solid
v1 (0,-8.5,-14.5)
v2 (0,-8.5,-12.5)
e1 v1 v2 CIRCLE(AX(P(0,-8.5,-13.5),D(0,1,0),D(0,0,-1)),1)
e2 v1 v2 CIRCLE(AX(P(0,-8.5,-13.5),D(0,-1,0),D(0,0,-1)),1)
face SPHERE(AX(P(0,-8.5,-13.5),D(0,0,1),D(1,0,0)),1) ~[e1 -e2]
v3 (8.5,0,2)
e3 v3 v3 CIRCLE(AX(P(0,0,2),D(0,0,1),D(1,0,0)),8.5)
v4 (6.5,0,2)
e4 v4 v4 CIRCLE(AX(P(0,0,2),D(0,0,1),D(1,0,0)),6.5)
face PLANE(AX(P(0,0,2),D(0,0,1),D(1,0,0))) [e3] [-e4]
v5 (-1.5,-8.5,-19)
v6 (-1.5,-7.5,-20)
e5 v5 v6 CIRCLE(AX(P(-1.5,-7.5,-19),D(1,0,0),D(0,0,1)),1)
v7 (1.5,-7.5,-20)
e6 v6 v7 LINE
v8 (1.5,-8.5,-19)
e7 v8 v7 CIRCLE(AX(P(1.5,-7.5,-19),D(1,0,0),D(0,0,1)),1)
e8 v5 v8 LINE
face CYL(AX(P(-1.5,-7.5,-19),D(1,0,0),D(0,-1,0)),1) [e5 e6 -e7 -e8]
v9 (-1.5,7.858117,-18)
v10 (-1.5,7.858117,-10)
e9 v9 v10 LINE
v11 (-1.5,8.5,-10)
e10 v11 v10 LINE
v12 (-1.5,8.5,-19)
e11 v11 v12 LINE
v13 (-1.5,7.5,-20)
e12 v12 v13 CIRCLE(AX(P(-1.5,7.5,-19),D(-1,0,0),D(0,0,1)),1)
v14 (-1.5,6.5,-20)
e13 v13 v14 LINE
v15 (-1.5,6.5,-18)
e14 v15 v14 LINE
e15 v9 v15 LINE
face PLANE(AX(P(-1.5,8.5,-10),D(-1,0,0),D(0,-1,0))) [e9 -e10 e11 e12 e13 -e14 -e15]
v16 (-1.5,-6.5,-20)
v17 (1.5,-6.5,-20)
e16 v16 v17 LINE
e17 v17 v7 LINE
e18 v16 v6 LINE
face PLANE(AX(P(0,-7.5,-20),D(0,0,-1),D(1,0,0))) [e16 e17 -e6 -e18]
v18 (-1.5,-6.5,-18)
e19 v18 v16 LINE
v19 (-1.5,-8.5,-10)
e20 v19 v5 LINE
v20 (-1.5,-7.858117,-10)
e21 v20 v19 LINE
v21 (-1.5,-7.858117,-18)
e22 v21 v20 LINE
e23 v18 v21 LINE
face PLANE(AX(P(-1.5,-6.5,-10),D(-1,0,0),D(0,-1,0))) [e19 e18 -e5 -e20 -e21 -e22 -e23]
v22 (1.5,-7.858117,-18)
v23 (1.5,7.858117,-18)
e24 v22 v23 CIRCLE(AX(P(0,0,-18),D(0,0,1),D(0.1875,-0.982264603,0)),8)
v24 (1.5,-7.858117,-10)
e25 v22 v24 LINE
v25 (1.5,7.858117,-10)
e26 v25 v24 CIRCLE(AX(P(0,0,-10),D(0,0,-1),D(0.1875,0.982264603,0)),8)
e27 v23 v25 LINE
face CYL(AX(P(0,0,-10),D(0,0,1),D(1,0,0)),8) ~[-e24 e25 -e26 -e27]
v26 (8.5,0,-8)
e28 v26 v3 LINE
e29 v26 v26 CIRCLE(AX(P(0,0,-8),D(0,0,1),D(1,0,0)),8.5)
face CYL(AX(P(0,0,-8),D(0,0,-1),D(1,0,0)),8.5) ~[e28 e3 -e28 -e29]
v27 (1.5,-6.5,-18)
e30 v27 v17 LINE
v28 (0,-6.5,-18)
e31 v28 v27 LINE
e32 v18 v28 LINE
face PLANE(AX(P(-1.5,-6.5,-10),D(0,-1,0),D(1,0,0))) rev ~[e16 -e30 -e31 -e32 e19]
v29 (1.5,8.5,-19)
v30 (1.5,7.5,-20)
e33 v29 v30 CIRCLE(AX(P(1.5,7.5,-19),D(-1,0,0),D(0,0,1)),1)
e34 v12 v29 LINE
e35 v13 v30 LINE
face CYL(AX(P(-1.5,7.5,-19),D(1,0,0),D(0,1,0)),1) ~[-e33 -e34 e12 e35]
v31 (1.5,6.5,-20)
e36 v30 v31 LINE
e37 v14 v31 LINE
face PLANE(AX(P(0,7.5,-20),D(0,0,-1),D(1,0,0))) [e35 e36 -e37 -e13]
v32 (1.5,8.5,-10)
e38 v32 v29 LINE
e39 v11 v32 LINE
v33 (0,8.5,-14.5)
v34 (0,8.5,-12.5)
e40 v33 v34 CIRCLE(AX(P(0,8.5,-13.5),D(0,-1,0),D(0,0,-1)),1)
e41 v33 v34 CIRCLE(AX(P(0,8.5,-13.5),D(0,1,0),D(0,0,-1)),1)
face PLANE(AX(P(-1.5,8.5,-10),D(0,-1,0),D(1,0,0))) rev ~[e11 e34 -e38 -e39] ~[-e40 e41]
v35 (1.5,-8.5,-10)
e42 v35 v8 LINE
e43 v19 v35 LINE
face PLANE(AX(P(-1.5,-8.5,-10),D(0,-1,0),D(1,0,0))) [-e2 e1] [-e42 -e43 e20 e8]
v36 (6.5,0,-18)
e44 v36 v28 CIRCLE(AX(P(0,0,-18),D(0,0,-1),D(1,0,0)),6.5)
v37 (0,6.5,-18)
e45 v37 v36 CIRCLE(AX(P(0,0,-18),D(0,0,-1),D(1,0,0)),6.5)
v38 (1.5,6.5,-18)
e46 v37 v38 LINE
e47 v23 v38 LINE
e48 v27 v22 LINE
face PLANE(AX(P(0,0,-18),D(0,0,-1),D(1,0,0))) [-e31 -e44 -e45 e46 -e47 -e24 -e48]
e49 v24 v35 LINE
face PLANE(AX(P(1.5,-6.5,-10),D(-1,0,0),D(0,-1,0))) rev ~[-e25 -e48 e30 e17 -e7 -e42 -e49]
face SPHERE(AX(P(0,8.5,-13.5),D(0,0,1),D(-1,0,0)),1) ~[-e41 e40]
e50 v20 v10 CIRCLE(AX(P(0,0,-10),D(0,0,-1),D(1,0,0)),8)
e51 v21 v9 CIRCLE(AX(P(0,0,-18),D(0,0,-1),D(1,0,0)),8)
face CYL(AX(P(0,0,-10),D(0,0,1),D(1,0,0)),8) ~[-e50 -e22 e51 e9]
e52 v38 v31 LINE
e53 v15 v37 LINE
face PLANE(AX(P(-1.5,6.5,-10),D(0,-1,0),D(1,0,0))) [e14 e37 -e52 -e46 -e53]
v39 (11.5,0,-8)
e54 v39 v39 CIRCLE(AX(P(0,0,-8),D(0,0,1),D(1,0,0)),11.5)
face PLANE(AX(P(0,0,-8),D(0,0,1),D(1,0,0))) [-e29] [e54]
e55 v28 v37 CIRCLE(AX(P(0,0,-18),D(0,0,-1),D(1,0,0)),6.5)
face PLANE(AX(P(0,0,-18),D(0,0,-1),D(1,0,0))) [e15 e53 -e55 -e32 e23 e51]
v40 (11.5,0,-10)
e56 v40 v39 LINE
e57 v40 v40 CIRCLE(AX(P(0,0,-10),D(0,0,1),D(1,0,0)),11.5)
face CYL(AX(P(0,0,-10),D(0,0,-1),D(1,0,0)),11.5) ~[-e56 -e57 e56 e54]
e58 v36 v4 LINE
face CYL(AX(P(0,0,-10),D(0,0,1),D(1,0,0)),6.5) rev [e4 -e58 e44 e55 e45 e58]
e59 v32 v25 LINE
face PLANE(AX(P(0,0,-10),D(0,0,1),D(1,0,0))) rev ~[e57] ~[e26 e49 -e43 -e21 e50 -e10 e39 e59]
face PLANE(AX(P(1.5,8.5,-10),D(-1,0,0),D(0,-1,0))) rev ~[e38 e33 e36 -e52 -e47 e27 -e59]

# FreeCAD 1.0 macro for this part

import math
import FreeCAD as App
import Part
import Sketcher

V = App.Vector


def edges_at(feature, points):
    """Names of the edges that pass closest to the given points."""
    edges = feature.Shape.Edges
    near = lambda p: min(range(len(edges)), key=lambda i: edges[i].distToShape(Part.Vertex(*p))[0])
    return sorted({f"Edge{near(p) + 1}" for p in points})


def add_polygon(sketch, points):
    """Adds a closed chain of lines whose ends are joined by coincident constraints."""
    first, n = sketch.GeometryCount, len(points)
    for a, b in zip(points, points[1:] + points[:1]):
        sketch.addGeometry(Part.LineSegment(App.Vector(*a, 0), App.Vector(*b, 0)), False)
    for i in range(n):
        sketch.addConstraint(Sketcher.Constraint("Coincident", first + i, 2, first + (i + 1) % n, 1))

doc = App.newDocument("Part")
body = doc.addObject("PartDesign::Body", "Body")

# Sketch on XY plane
sketch1 = body.newObject("Sketcher::SketchObject", "Sketch")
sketch1.AttachmentSupport = (doc.getObject("XY_Plane"), [""])
sketch1.MapMode = "FlatFace"
sketch1.addGeometry(Part.Circle(V(0, 0, 0), V(0, 0, 1), 12), False)
sketch1.addGeometry(Part.Circle(V(0, 0, 0), V(0, 0, 1), 6), False)
sketch1.addConstraint(Sketcher.Constraint("Coincident", 0, 3, -1, 1))
sketch1.addConstraint(Sketcher.Constraint("Coincident", 1, 3, -1, 1))
sketch1.addConstraint(Sketcher.Constraint("Diameter", 0, 23.0))
sketch1.addConstraint(Sketcher.Constraint("Diameter", 1, 13.0))
pad1 = body.newObject("PartDesign::Pad", "Pad")
pad1.Profile = sketch1
pad1.Length = 2

# Sketch on XY plane
sketch2 = body.newObject("Sketcher::SketchObject", "Sketch001")
sketch2.AttachmentSupport = (doc.getObject("XY_Plane"), [""])
sketch2.MapMode = "FlatFace"
sketch2.AttachmentOffset = App.Placement(V(0, 0, 2), App.Rotation())
sketch2.addGeometry(Part.Circle(V(0, 0, 0), V(0, 0, 1), 8), False)
sketch2.addGeometry(Part.Circle(V(0, 0, 0), V(0, 0, 1), 6), False)
sketch2.addConstraint(Sketcher.Constraint("Coincident", 0, 3, -1, 1))
sketch2.addConstraint(Sketcher.Constraint("Coincident", 1, 3, -1, 1))
sketch2.addConstraint(Sketcher.Constraint("Diameter", 0, 17.0))
sketch2.addConstraint(Sketcher.Constraint("Diameter", 1, 13.0))
pad2 = body.newObject("PartDesign::Pad", "Pad001")
pad2.Profile = sketch2
pad2.Length = 10

# Sketch on XY plane
sketch3 = body.newObject("Sketcher::SketchObject", "Sketch002")
sketch3.AttachmentSupport = (doc.getObject("XY_Plane"), [""])
sketch3.MapMode = "FlatFace"
add_polygon(sketch3, [(-1.5, -8.5), (-1.5, -6.5), (1.5, -6.5), (1.5, -8.5)])  # lines 0-3
add_polygon(sketch3, [(-1.5, 6.5), (-1.5, 8.5), (1.5, 8.5), (1.5, 6.5)])  # lines 4-7
sketch3.addConstraint(Sketcher.Constraint("Vertical", 0))
sketch3.addConstraint(Sketcher.Constraint("Horizontal", 1))
sketch3.addConstraint(Sketcher.Constraint("Vertical", 2))
sketch3.addConstraint(Sketcher.Constraint("Horizontal", 3))
sketch3.addConstraint(Sketcher.Constraint("Vertical", 4))
sketch3.addConstraint(Sketcher.Constraint("Horizontal", 5))
sketch3.addConstraint(Sketcher.Constraint("Vertical", 6))
sketch3.addConstraint(Sketcher.Constraint("Horizontal", 7))
sketch3.addConstraint(Sketcher.Constraint("Symmetric", 2, 2, 4, 2, -1, 1))
sketch3.addConstraint(Sketcher.Constraint("Symmetric", 0, 2, 6, 2, -1, 1))
sketch3.addConstraint(Sketcher.Constraint("Vertical", 3, 2, 4, 2))
sketch3.addConstraint(Sketcher.Constraint("DistanceX", 1, 1, 1, 2, 3.0))
sketch3.addConstraint(Sketcher.Constraint("DistanceY", 0, 1, 0, 2, 2.0))
sketch3.addConstraint(Sketcher.Constraint("DistanceY", 0, 2, 4, 2, 15.0))
pad3 = body.newObject("PartDesign::Pad", "Pad002")
pad3.Profile = sketch3
pad3.Length = 10
pad3.Reversed = True

# Sketch on XZ plane
sketch4 = body.newObject("Sketcher::SketchObject", "Sketch003")
sketch4.AttachmentSupport = (doc.getObject("XZ_Plane"), [""])
sketch4.MapMode = "FlatFace"
sketch4.AttachmentOffset = App.Placement(V(0, 0, 8.5), App.Rotation())
sketch4.addGeometry(Part.ArcOfCircle(Part.Circle(V(0, -3.5, 0), V(0, 0, 1), 1), math.radians(-90), math.radians(90)), False)
sketch4.addGeometry(Part.LineSegment(V(0, -2.5, 0), V(0, -4.5, 0)), False)
sketch4.addConstraint(Sketcher.Constraint("Coincident", 0, 1, 1, 2))
sketch4.addConstraint(Sketcher.Constraint("Coincident", 1, 1, 0, 2))
sketch4.addConstraint(Sketcher.Constraint("Vertical", 1))
sketch4.addConstraint(Sketcher.Constraint("PointOnObject", 0, 3, -2))
sketch4.addConstraint(Sketcher.Constraint("PointOnObject", 0, 1, -2))
sketch4.addConstraint(Sketcher.Constraint("Radius", 0, 1.0))
sketch4.addConstraint(Sketcher.Constraint("DistanceY", 0, 3, -1, 1, 3.5))
revolution = body.newObject("PartDesign::Revolution", "Revolution")
revolution.Profile = sketch4
revolution.ReferenceAxis = (sketch4, ["V_Axis"])
revolution.Angle = 180
revolution.Reversed = True

# Sketch on XZ plane
sketch5 = body.newObject("Sketcher::SketchObject", "Sketch004")
sketch5.AttachmentSupport = (doc.getObject("XZ_Plane"), [""])
sketch5.MapMode = "FlatFace"
sketch5.AttachmentOffset = App.Placement(V(0, 0, -8.5), App.Rotation())
sketch5.addGeometry(Part.ArcOfCircle(Part.Circle(V(0, -3.5, 0), V(0, 0, 1), 1), math.radians(90), math.radians(270)), False)
sketch5.addGeometry(Part.LineSegment(V(0, -2.5, 0), V(0, -4.5, 0)), False)
sketch5.addConstraint(Sketcher.Constraint("Coincident", 0, 1, 1, 1))
sketch5.addConstraint(Sketcher.Constraint("Coincident", 1, 2, 0, 2))
sketch5.addConstraint(Sketcher.Constraint("Vertical", 1))
sketch5.addConstraint(Sketcher.Constraint("PointOnObject", 0, 3, -2))
sketch5.addConstraint(Sketcher.Constraint("PointOnObject", 0, 1, -2))
sketch5.addConstraint(Sketcher.Constraint("Radius", 0, 1.0))
sketch5.addConstraint(Sketcher.Constraint("DistanceY", 0, 3, -1, 1, 3.5))
revolution2 = body.newObject("PartDesign::Revolution", "Revolution001")
revolution2.Profile = sketch5
revolution2.ReferenceAxis = (sketch5, ["V_Axis"])
revolution2.Angle = 180
revolution2.Reversed = True
doc.recompute()

fillet = body.newObject("PartDesign::Fillet", "Fillet")
fillet.Base = (revolution2, edges_at(revolution2, [(0, 8.5, -10), (0, -8.5, -10)]))
fillet.Radius = 1

# Sketch on XY plane
sketch6 = body.newObject("Sketcher::SketchObject", "Sketch005")
sketch6.AttachmentSupport = (doc.getObject("XY_Plane"), [""])
sketch6.MapMode = "FlatFace"
sketch6.addGeometry(Part.Circle(V(0, 0, 0), V(0, 0, 1), 8), False)
sketch6.addGeometry(Part.Circle(V(0, 0, 0), V(0, 0, 1), 6), False)
sketch6.addConstraint(Sketcher.Constraint("Coincident", 0, 3, -1, 1))
sketch6.addConstraint(Sketcher.Constraint("Coincident", 1, 3, -1, 1))
sketch6.addConstraint(Sketcher.Constraint("Diameter", 0, 16.0))
sketch6.addConstraint(Sketcher.Constraint("Diameter", 1, 13.0))
pad4 = body.newObject("PartDesign::Pad", "Pad003")
pad4.Profile = sketch6
pad4.Length = 8
pad4.Reversed = True
body2 = doc.addObject("PartDesign::Body", "Body001")
doc.recompute()

body.Placement = App.Placement(V(0, 0, -10), App.Rotation(V(0, 0, 1), 0))
boolean = body2.newObject("PartDesign::Boolean", "Boolean")
boolean.Type = "Fuse"
boolean.addObjects([body])

doc.recompute()
